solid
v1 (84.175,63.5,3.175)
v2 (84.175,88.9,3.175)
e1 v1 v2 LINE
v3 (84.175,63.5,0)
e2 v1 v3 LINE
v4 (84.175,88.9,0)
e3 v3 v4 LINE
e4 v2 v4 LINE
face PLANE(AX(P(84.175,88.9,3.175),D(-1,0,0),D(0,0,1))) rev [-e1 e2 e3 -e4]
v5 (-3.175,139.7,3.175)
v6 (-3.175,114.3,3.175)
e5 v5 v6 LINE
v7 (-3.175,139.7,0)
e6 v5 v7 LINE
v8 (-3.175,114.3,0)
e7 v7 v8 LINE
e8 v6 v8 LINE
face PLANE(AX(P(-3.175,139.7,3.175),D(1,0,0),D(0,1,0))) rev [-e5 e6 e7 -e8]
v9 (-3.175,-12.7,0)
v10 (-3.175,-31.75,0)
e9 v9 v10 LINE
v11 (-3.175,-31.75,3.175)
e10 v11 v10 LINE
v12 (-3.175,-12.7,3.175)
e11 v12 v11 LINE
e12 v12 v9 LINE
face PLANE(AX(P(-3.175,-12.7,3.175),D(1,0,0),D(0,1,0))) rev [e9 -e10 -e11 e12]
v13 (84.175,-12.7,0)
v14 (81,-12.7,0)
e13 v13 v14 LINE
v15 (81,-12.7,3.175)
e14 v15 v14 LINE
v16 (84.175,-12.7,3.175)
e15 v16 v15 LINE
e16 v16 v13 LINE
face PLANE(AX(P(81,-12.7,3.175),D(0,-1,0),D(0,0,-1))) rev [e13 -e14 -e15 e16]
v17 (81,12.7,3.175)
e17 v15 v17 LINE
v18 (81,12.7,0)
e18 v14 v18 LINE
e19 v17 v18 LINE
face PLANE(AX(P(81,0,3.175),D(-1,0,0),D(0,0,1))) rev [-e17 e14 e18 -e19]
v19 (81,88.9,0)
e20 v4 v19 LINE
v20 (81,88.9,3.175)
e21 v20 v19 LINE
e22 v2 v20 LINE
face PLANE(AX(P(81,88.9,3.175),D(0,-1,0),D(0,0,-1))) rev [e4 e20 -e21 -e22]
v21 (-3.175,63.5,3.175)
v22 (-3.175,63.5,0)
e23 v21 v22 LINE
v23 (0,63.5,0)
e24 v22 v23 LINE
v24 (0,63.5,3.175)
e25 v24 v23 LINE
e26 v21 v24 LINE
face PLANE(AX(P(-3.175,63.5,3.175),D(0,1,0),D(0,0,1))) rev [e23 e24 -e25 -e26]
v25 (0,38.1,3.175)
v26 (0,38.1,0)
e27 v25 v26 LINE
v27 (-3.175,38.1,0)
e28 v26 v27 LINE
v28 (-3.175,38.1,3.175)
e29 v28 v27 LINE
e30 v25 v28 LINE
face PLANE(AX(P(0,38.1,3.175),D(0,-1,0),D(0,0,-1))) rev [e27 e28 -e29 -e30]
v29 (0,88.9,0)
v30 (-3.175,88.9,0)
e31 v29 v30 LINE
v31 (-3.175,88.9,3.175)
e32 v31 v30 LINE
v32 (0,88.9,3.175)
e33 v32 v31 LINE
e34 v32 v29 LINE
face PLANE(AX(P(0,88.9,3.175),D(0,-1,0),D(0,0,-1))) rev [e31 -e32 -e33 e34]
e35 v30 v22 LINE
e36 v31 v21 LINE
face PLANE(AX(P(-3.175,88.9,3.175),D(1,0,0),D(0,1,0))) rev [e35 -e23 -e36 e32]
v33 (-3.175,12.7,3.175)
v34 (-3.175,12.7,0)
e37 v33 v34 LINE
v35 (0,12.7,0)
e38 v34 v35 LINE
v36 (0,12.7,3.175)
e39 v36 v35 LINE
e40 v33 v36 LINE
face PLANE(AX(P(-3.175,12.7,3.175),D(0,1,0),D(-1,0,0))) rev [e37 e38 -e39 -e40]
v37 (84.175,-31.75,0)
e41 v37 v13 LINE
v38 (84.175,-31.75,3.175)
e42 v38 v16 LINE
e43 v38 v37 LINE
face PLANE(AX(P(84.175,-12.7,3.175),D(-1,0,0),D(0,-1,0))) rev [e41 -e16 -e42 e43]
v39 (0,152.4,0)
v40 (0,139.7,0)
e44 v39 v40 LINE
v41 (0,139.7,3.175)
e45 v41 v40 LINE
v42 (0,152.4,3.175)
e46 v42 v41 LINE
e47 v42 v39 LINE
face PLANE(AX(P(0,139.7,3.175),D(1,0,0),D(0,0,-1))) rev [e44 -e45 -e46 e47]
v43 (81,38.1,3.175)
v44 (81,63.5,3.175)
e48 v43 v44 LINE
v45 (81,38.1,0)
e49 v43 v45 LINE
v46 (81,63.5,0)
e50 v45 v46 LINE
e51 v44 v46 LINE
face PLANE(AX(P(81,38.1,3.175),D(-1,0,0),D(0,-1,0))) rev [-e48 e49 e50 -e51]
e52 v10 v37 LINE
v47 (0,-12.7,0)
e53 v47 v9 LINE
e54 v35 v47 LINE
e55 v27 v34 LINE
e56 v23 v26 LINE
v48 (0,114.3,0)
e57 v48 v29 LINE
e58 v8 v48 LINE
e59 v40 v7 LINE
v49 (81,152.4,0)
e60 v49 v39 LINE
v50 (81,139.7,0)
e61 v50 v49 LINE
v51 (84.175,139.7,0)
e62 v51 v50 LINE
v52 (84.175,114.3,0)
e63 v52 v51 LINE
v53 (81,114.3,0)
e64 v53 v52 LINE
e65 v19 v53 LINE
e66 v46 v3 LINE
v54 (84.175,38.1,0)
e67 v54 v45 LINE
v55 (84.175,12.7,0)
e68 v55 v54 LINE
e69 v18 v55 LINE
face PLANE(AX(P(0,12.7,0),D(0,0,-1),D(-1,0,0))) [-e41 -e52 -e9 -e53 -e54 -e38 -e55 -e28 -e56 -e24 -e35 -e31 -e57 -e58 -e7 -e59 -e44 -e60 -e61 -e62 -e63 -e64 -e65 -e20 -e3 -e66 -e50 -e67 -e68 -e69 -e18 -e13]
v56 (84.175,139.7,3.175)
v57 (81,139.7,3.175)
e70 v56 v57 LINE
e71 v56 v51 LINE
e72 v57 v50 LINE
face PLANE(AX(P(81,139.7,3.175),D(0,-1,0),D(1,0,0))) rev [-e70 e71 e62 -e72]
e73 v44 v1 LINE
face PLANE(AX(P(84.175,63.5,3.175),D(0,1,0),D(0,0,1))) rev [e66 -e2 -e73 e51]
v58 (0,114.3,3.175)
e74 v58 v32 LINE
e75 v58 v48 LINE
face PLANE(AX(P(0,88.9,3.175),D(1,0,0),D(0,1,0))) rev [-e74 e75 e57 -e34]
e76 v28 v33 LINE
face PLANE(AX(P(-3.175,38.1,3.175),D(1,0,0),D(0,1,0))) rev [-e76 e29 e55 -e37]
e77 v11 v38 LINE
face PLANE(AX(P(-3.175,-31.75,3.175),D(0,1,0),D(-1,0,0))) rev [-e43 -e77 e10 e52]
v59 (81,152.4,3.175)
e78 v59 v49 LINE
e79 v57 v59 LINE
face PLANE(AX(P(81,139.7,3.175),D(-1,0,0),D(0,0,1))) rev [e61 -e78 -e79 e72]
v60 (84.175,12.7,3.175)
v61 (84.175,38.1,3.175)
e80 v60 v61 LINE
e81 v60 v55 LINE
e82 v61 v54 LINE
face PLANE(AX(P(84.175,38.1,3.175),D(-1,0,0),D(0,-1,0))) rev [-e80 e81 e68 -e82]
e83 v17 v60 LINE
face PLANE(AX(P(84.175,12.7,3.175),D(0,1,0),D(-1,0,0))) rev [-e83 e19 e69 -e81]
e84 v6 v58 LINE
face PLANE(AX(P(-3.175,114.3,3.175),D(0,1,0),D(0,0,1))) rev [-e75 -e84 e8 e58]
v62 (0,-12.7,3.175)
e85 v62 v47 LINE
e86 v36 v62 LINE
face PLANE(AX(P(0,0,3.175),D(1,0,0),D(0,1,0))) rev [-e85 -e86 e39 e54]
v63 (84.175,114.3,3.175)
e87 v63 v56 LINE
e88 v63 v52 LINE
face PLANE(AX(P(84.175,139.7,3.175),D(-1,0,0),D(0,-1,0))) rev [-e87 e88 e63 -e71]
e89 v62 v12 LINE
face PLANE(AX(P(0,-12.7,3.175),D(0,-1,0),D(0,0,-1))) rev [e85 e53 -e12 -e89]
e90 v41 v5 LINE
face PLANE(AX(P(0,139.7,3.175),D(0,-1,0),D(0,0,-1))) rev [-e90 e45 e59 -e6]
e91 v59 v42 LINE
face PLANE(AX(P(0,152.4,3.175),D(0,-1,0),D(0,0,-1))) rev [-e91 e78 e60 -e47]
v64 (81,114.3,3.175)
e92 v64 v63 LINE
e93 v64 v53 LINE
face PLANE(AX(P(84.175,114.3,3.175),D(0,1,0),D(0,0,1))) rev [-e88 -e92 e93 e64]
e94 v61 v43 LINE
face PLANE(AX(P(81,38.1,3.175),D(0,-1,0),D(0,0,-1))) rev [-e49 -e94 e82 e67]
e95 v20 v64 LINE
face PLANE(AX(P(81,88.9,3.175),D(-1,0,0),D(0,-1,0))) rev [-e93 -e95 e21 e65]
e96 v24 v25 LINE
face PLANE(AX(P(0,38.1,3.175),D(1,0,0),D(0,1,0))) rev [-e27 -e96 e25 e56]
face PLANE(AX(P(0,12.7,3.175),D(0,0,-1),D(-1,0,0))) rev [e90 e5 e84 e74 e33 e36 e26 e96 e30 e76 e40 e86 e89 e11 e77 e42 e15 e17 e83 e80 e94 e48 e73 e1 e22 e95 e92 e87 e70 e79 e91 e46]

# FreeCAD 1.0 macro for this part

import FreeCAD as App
import Part
import Sketcher

V = App.Vector
Q = App.Units.Quantity


def add_polygon(sketch, points):
    """Adds a closed chain of lines whose ends are joined by coincident constraints."""
    first, n = sketch.GeometryCount, len(points)
    for a, b in zip(points, points[1:] + points[:1]):
        sketch.addGeometry(Part.LineSegment(App.Vector(*a, 0), App.Vector(*b, 0)), False)
    for i in range(n):
        sketch.addConstraint(Sketcher.Constraint("Coincident", first + i, 2, first + (i + 1) % n, 1))

doc = App.newDocument("Part")
params = doc.addObject("Spreadsheet::Sheet", "Params")
for row, (alias, value) in enumerate([
    ("sketch1_height", "1 in"),
    ("sketch1_height2", "0.5 in"),
    ("sketch1_height3", "0.75 in"),
    ("sketch1_width", "0.125 in"),
    ("pad1_length", "0.125 in"),
], start=1):
    params.set(f"A{row}", alias)
    params.set(f"B{row}", "=" + value)
    params.setAlias(f"B{row}", alias)

body = doc.addObject("PartDesign::Body", "Body")

sketch1 = body.newObject("Sketcher::SketchObject", "Sketch")
sketch1.AttachmentSupport = (doc.getObject("XY_Plane"), [""])
sketch1.MapMode = "FlatFace"
add_polygon(sketch1, [(0, 139.7), (-3.2, 139.7), (-3.2, 114.3), (0, 114.3), (0, 88.9), (-3.2, 88.9), (-3.2, 63.5), (0, 63.5), (0, 38.1), (-3.2, 38.1), (-3.2, 12.7), (0, 12.7), (0, -12.7), (-3.2, -12.7), (-3.2, -31.8), (84.2, -31.8), (84.2, -12.7), (81, -12.7), (81, 12.7), (84.2, 12.7), (84.2, 38.1), (81, 38.1), (81, 63.5), (84.2, 63.5), (84.2, 88.9), (81, 88.9), (81, 114.3), (84.2, 114.3), (84.2, 139.7), (81, 139.7), (81, 152.4), (0, 152.4)])
sketch1.addConstraint(Sketcher.Constraint("Horizontal", 0))
sketch1.addConstraint(Sketcher.Constraint("Vertical", 1))
sketch1.addConstraint(Sketcher.Constraint("Horizontal", 2))
sketch1.addConstraint(Sketcher.Constraint("Vertical", 3))
sketch1.addConstraint(Sketcher.Constraint("Horizontal", 4))
sketch1.addConstraint(Sketcher.Constraint("Vertical", 5))
sketch1.addConstraint(Sketcher.Constraint("Horizontal", 6))
sketch1.addConstraint(Sketcher.Constraint("Vertical", 7))
sketch1.addConstraint(Sketcher.Constraint("Horizontal", 8))
sketch1.addConstraint(Sketcher.Constraint("Vertical", 9))
sketch1.addConstraint(Sketcher.Constraint("Horizontal", 10))
sketch1.addConstraint(Sketcher.Constraint("Vertical", 11))
sketch1.addConstraint(Sketcher.Constraint("Horizontal", 12))
sketch1.addConstraint(Sketcher.Constraint("Vertical", 13))
sketch1.addConstraint(Sketcher.Constraint("Horizontal", 14))
sketch1.addConstraint(Sketcher.Constraint("Vertical", 15))
sketch1.addConstraint(Sketcher.Constraint("Horizontal", 16))
sketch1.addConstraint(Sketcher.Constraint("Vertical", 17))
sketch1.addConstraint(Sketcher.Constraint("Horizontal", 18))
sketch1.addConstraint(Sketcher.Constraint("Vertical", 19))
sketch1.addConstraint(Sketcher.Constraint("Horizontal", 20))
sketch1.addConstraint(Sketcher.Constraint("Vertical", 21))
sketch1.addConstraint(Sketcher.Constraint("Horizontal", 22))
sketch1.addConstraint(Sketcher.Constraint("Vertical", 23))
sketch1.addConstraint(Sketcher.Constraint("Horizontal", 24))
sketch1.addConstraint(Sketcher.Constraint("Vertical", 25))
sketch1.addConstraint(Sketcher.Constraint("Horizontal", 26))
sketch1.addConstraint(Sketcher.Constraint("Vertical", 27))
sketch1.addConstraint(Sketcher.Constraint("Horizontal", 28))
sketch1.addConstraint(Sketcher.Constraint("Vertical", 29))
sketch1.addConstraint(Sketcher.Constraint("Horizontal", 30))
sketch1.addConstraint(Sketcher.Constraint("Vertical", 31))
sketch1.addConstraint(Sketcher.Constraint("Symmetric", 10, 2, 11, 2, -1, 1))
sketch1.addConstraint(Sketcher.Constraint("Symmetric", 15, 2, 18, 2, -1))
sketch1.addConstraint(Sketcher.Constraint("PointOnObject", 2, 2, -2))
sketch1.addConstraint(Sketcher.Constraint("PointOnObject", 6, 2, -2))
sketch1.addConstraint(Sketcher.Constraint("PointOnObject", 30, 2, -2))
sketch1.addConstraint(Sketcher.Constraint("Horizontal", 12, 2, 15, 2))
sketch1.addConstraint(Sketcher.Constraint("Horizontal", 8, 2, 19, 2))
sketch1.addConstraint(Sketcher.Constraint("Horizontal", 6, 2, 21, 2))
sketch1.addConstraint(Sketcher.Constraint("Horizontal", 4, 2, 23, 2))
sketch1.addConstraint(Sketcher.Constraint("Horizontal", 2, 2, 25, 2))
sketch1.addConstraint(Sketcher.Constraint("Horizontal", 0, 2, 27, 2))
sketch1.addConstraint(Sketcher.Constraint("Vertical", 1, 2, 4, 2))
sketch1.addConstraint(Sketcher.Constraint("Vertical", 5, 2, 8, 2))
sketch1.addConstraint(Sketcher.Constraint("Vertical", 9, 2, 12, 2))
sketch1.addConstraint(Sketcher.Constraint("Vertical", 17, 2, 20, 2))
sketch1.addConstraint(Sketcher.Constraint("Vertical", 19, 2, 22, 2))
sketch1.addConstraint(Sketcher.Constraint("Vertical", 21, 2, 24, 2))
sketch1.addConstraint(Sketcher.Constraint("Vertical", 23, 2, 26, 2))
sketch1.addConstraint(Sketcher.Constraint("Vertical", 25, 2, 28, 2))
sketch1.addConstraint(Sketcher.Constraint("Equal", 12, 16))
sketch1.addConstraint(Sketcher.Constraint("Equal", 1, 3))
sketch1.addConstraint(Sketcher.Constraint("Equal", 3, 5))
sketch1.addConstraint(Sketcher.Constraint("Equal", 5, 7))
sketch1.addConstraint(Sketcher.Constraint("Equal", 7, 9))
sketch1.addConstraint(Sketcher.Constraint("Equal", 9, 11))
sketch1.addConstraint(Sketcher.Constraint("DistanceY", 1, 2, 1, 1, Q("1 in")))
sketch1.addConstraint(Sketcher.Constraint("DistanceY", 29, 1, 29, 2, Q("0.5 in")))
sketch1.addConstraint(Sketcher.Constraint("DistanceY", 13, 2, 13, 1, Q("0.75 in")))
sketch1.addConstraint(Sketcher.Constraint("DistanceX", 0, 2, 0, 1, Q("0.125 in")))
sketch1.addConstraint(Sketcher.Constraint("DistanceX", 14, 1, 14, 2, 87.35))
sketch1.setExpression("Constraints[89]", "Params.sketch1_height")
sketch1.setExpression("Constraints[90]", "Params.sketch1_height2")
sketch1.setExpression("Constraints[91]", "Params.sketch1_height3")
sketch1.setExpression("Constraints[92]", "Params.sketch1_width")
pad1 = body.newObject("PartDesign::Pad", "Pad")
pad1.Profile = sketch1
pad1.setExpression("Length", "Params.pad1_length")

doc.recompute()
